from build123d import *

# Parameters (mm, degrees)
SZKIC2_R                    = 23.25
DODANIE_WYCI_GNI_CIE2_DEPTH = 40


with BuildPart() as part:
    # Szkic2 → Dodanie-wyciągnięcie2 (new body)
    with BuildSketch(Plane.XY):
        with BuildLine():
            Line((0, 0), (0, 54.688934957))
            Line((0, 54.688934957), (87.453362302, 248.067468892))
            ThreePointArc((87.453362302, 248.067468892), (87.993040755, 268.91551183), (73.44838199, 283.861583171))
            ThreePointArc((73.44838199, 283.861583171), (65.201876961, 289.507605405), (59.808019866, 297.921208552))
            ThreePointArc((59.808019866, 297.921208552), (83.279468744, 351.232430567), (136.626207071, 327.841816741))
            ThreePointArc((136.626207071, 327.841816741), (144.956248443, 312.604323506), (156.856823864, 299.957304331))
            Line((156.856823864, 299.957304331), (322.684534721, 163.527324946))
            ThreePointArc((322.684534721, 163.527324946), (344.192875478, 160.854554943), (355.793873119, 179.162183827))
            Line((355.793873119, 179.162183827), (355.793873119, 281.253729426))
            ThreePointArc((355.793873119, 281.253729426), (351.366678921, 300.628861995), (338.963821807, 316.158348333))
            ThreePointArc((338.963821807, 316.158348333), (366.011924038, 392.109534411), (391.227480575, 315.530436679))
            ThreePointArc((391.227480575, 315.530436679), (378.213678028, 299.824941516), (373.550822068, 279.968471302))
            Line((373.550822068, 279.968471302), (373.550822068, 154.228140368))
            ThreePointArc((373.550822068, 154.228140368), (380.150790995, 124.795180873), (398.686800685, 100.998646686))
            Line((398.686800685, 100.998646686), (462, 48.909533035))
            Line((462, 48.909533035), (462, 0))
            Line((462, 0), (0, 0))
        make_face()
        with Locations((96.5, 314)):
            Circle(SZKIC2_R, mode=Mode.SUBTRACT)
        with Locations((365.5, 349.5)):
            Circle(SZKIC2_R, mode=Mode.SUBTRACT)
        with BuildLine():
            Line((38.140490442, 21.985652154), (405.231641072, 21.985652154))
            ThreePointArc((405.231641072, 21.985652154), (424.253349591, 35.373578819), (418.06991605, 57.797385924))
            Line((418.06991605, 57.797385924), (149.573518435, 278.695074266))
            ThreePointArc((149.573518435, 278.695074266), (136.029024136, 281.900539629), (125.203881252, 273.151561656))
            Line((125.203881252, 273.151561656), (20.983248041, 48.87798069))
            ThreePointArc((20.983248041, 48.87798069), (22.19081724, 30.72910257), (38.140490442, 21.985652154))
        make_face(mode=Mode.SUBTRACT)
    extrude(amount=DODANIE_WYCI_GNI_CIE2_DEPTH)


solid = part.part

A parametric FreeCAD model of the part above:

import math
import FreeCAD as App
import Part
import Sketcher
from FreeCAD import Vector
Q = App.Units.Quantity

doc = App.newDocument("Part")
body = doc.addObject("PartDesign::Body", "Body")

# Sketch on XY plane
sketch1 = body.newObject("Sketcher::SketchObject", "Sketch")
sketch1.AttachmentSupport = (doc.getObject("XY_Plane"), [""])
sketch1.MapMode = "FlatFace"
sketch1.addGeometry([
    Part.LineSegment(Vector(0, 54.688935, 0), Vector(0, 0, 0)),  # 0
    Part.LineSegment(Vector(0, 0, 0), Vector(462, 0, 0)),  # 1
    Part.LineSegment(Vector(462, 0, 0), Vector(462, 48.909533, 0)),  # 2
    Part.LineSegment(Vector(462, 48.909533, 0), Vector(398.686801, 100.998647, 0)),  # 3
    Part.ArcOfCircle(Part.Circle(Vector(442.479836, 154.22814, 0), Vector(0, 0, 1), 68.929013), math.radians(-180), math.radians(-129.444857)),  # 4
    Part.LineSegment(Vector(373.550822, 154.22814, 0), Vector(373.550822, 279.968471, 0)),  # 5
    Part.ArcOfCircle(Part.Circle(Vector(418.160996, 279.968471, 0), Vector(0, 0, 1), 44.610174), math.radians(127.139145), math.radians(180)),  # 6
    Part.ArcOfCircle(Part.Circle(Vector(365.5, 349.5, 0), Vector(0, 0, 1), 42.61261), math.radians(-52.860855), math.radians(231.484183)),  # 7
    Part.ArcOfCircle(Part.Circle(Vector(311.183699, 281.253729, 0), Vector(0, 0, 1), 44.610174), math.radians(0), math.radians(51.484183)),  # 8
    Part.LineSegment(Vector(355.793873, 281.253729, 0), Vector(355.793873, 179.162184, 0)),  # 9
    Part.ArcOfCircle(Part.Circle(Vector(335.547665, 179.162184, 0), Vector(0, 0, 1), 20.246208), math.radians(-129.444857), math.radians(0)),  # 10
    Part.LineSegment(Vector(322.684535, 163.527325, 0), Vector(156.856824, 299.957304, 0)),  # 11
    Part.ArcOfCircle(Part.Circle(Vector(200.29074, 352.750297, 0), Vector(0, 0, 1), 68.363771), math.radians(-158.632288), math.radians(-129.444857)),  # 12
    Part.ArcOfCircle(Part.Circle(Vector(98.23979, 312.823293, 0), Vector(0, 0, 1), 41.219814), math.radians(21.367712), math.radians(201.194017)),  # 13
    Part.ArcOfCircle(Part.Circle(Vector(83.238686, 307.00655, 0), Vector(0, 0, 1), 25.130451), math.radians(-158.805983), math.radians(-112.928327)),  # 14
    Part.ArcOfCircle(Part.Circle(Vector(62.987702, 259.131801, 0), Vector(0, 0, 1), 26.851219), math.radians(-24.33435), math.radians(67.071673)),  # 15
    Part.LineSegment(Vector(87.453362, 248.067469, 0), Vector(0, 54.688935, 0)),  # 16
    Part.ArcOfCircle(Part.Circle(Vector(38.14049, 40.904957, 0), Vector(0, 0, 1), 18.919304), math.radians(155.07556), math.radians(270)),  # 17
    Part.LineSegment(Vector(20.983248, 48.877981, 0), Vector(125.203881, 273.151562, 0)),  # 18
    Part.ArcOfCircle(Part.Circle(Vector(139.534033, 266.492295, 0), Vector(0, 0, 1), 15.801869), math.radians(50.555143), math.radians(155.07556)),  # 19
    Part.LineSegment(Vector(149.573518, 278.695074, 0), Vector(418.069916, 57.797386, 0)),  # 20
    Part.ArcOfCircle(Part.Circle(Vector(405.231641, 42.192738, 0), Vector(0, 0, 1), 20.207086), math.radians(-90), math.radians(50.555143)),  # 21
    Part.LineSegment(Vector(405.231641, 21.985652, 0), Vector(38.14049, 21.985652, 0)),  # 22
    Part.Circle(Vector(365.5, 349.5, 0), Vector(0, 0, 1), 23.25),  # 23
    Part.Circle(Vector(96.5, 314, 0), Vector(0, 0, 1), 23.25),  # 24
], False)
sketch1.addConstraint([
    Sketcher.Constraint("Coincident", 0, 2, 1, 1),
    Sketcher.Constraint("Coincident", 1, 2, 2, 1),
    Sketcher.Constraint("Coincident", 2, 2, 3, 1),
    Sketcher.Constraint("Coincident", 3, 2, 4, 2),
    Sketcher.Constraint("Coincident", 4, 1, 5, 1),
    Sketcher.Constraint("Coincident", 5, 2, 6, 2),
    Sketcher.Constraint("Coincident", 6, 1, 7, 1),
    Sketcher.Constraint("Coincident", 7, 2, 8, 2),
    Sketcher.Constraint("Coincident", 8, 1, 9, 1),
    Sketcher.Constraint("Coincident", 9, 2, 10, 2),
    Sketcher.Constraint("Coincident", 10, 1, 11, 1),
    Sketcher.Constraint("Coincident", 11, 2, 12, 2),
    Sketcher.Constraint("Coincident", 12, 1, 13, 1),
    Sketcher.Constraint("Coincident", 13, 2, 14, 1),
    Sketcher.Constraint("Coincident", 14, 2, 15, 2),
    Sketcher.Constraint("Coincident", 15, 1, 16, 1),
    Sketcher.Constraint("Coincident", 16, 2, 0, 1),
    Sketcher.Constraint("Coincident", 17, 1, 18, 1),
    Sketcher.Constraint("Coincident", 18, 2, 19, 2),
    Sketcher.Constraint("Coincident", 19, 1, 20, 1),
    Sketcher.Constraint("Coincident", 20, 2, 21, 2),
    Sketcher.Constraint("Coincident", 21, 1, 22, 1),
    Sketcher.Constraint("Coincident", 22, 2, 17, 2),
    Sketcher.Constraint("Vertical", 0),
    Sketcher.Constraint("Horizontal", 1),
    Sketcher.Constraint("Vertical", 2),
    Sketcher.Constraint("Vertical", 5),
    Sketcher.Constraint("Vertical", 9),
    Sketcher.Constraint("Horizontal", 22),
    Sketcher.Constraint("Coincident", 0, 2, -1, 1),
    Sketcher.Constraint("Coincident", 23, 3, 7, 3),
    Sketcher.Constraint("Diameter", 23, Q("46.5 mm")),
    Sketcher.Constraint("Diameter", 24, Q("46.5 mm")),
    Sketcher.Constraint("DistanceX", 1, 1, 1, 2, Q("462 mm")),
    Sketcher.Constraint("DistanceY", -1, 1, 24, 3, Q("314 mm")),
    Sketcher.Constraint("DistanceX", -1, 1, 7, 3, Q("365.5 mm")),
    Sketcher.Constraint("DistanceY", -1, 1, 7, 3, Q("349.5 mm")),
    Sketcher.Constraint("DistanceX", -1, 1, 24, 3, Q("96.5 mm")),
    Sketcher.Constraint("Radius", 7, Q("42.61261 mm")),
    Sketcher.Constraint("Radius", 12, Q("68.363771 mm")),
    Sketcher.Constraint("Radius", 14, Q("25.130451 mm")),
    Sketcher.Constraint("Radius", 15, Q("26.851219 mm")),
    Sketcher.Constraint("Radius", 19, Q("15.801869 mm")),
    Sketcher.Constraint("Radius", 4, Q("68.929013 mm")),
    Sketcher.Constraint("Radius", 6, Q("44.610174 mm")),
    Sketcher.Constraint("Radius", 8, Q("44.610174 mm")),
    Sketcher.Constraint("Radius", 10, Q("20.246208 mm")),
    Sketcher.Constraint("Radius", 13, Q("41.219814 mm")),
    Sketcher.Constraint("Radius", 17, Q("18.919304 mm")),
    Sketcher.Constraint("Radius", 21, Q("20.207086 mm")),
    Sketcher.Constraint("DistanceY", 19, 3, 12, 3, Q("86.258002 mm")),
    Sketcher.Constraint("DistanceX", 7, 2, 5, 2, Q("34.587 mm")),
    Sketcher.Constraint("DistanceX", 22, 2, 22, 1, Q("367.091151 mm")),
    Sketcher.Constraint("DistanceY", 5, 1, 5, 2, Q("125.740331 mm")),
    Sketcher.Constraint("DistanceX", -1, 1, 8, 3, Q("311.183699 mm")),
    Sketcher.Constraint("DistanceY", -1, 1, 15, 3, Q("259.131801 mm")),
    Sketcher.Constraint("DistanceX", -1, 1, 3, 2, Q("398.686801 mm")),
    Sketcher.Constraint("DistanceX", 17, 3, 13, 3, Q("60.0993 mm")),
    Sketcher.Constraint("Distance", 3, Q("81.98681 mm")),
    Sketcher.Constraint("Distance", 16, Q("212.234182 mm")),
    Sketcher.Constraint("Distance", 18, Q("247.306651 mm")),
    Sketcher.Constraint("Distance", 20, Q("347.68679 mm")),
    Sketcher.Constraint("DistanceY", 0, 2, 0, 1, Q("54.688935 mm")),
    Sketcher.Constraint("DistanceY", 2, 1, 2, 2, Q("48.909533 mm")),
    Sketcher.Constraint("DistanceY", 9, 2, 9, 1, Q("102.091546 mm")),
    Sketcher.Constraint("DistanceY", -1, 1, 4, 3, Q("154.22814 mm")),
    Sketcher.Constraint("DistanceX", -1, 1, 12, 3, Q("200.29074 mm")),
    Sketcher.Constraint("DistanceX", -1, 1, 13, 3, Q("98.23979 mm")),
    Sketcher.Constraint("DistanceY", -1, 1, 14, 3, Q("307.00655 mm")),
    Sketcher.Constraint("DistanceX", -1, 1, 21, 3, Q("405.231641 mm")),
    Sketcher.Constraint("DistanceY", -1, 1, 21, 3, Q("42.192738 mm")),
    Sketcher.Constraint("DistanceY", -1, 1, 4, 1, Q("154.22814 mm")),
    Sketcher.Constraint("DistanceX", -1, 1, 6, 1, Q("391.227481 mm")),
    Sketcher.Constraint("DistanceY", -1, 1, 8, 1, Q("281.253729 mm")),
    Sketcher.Constraint("DistanceX", -1, 1, 13, 2, Q("59.80802 mm")),
    Sketcher.Constraint("DistanceY", -1, 1, 13, 2, Q("297.921209 mm")),
    Sketcher.Constraint("DistanceX", -1, 1, 14, 2, Q("73.448382 mm")),
    Sketcher.Constraint("DistanceX", -1, 1, 17, 1, Q("20.983248 mm")),
    Sketcher.Constraint("DistanceX", -1, 1, 18, 2, Q("125.203881 mm")),
    Sketcher.Constraint("DistanceX", -1, 1, 19, 1, Q("149.573518 mm")),
    Sketcher.Constraint("DistanceX", -1, 1, 21, 1, Q("405.231641 mm")),
    Sketcher.Constraint("DistanceY", 10, 3, 13, 3, Q("133.661109 mm")),
    Sketcher.Constraint("DistanceX", 10, 1, 10, 3, Q("12.86313 mm")),
    Sketcher.Constraint("DistanceX", 19, 3, 11, 2, Q("17.322791 mm")),
    Sketcher.Constraint("DistanceX", 14, 3, 12, 1, Q("53.387521 mm")),
])
pad1 = body.newObject("PartDesign::Pad", "Pad")
pad1.Profile = sketch1
pad1.Length = 40

doc.recompute()
